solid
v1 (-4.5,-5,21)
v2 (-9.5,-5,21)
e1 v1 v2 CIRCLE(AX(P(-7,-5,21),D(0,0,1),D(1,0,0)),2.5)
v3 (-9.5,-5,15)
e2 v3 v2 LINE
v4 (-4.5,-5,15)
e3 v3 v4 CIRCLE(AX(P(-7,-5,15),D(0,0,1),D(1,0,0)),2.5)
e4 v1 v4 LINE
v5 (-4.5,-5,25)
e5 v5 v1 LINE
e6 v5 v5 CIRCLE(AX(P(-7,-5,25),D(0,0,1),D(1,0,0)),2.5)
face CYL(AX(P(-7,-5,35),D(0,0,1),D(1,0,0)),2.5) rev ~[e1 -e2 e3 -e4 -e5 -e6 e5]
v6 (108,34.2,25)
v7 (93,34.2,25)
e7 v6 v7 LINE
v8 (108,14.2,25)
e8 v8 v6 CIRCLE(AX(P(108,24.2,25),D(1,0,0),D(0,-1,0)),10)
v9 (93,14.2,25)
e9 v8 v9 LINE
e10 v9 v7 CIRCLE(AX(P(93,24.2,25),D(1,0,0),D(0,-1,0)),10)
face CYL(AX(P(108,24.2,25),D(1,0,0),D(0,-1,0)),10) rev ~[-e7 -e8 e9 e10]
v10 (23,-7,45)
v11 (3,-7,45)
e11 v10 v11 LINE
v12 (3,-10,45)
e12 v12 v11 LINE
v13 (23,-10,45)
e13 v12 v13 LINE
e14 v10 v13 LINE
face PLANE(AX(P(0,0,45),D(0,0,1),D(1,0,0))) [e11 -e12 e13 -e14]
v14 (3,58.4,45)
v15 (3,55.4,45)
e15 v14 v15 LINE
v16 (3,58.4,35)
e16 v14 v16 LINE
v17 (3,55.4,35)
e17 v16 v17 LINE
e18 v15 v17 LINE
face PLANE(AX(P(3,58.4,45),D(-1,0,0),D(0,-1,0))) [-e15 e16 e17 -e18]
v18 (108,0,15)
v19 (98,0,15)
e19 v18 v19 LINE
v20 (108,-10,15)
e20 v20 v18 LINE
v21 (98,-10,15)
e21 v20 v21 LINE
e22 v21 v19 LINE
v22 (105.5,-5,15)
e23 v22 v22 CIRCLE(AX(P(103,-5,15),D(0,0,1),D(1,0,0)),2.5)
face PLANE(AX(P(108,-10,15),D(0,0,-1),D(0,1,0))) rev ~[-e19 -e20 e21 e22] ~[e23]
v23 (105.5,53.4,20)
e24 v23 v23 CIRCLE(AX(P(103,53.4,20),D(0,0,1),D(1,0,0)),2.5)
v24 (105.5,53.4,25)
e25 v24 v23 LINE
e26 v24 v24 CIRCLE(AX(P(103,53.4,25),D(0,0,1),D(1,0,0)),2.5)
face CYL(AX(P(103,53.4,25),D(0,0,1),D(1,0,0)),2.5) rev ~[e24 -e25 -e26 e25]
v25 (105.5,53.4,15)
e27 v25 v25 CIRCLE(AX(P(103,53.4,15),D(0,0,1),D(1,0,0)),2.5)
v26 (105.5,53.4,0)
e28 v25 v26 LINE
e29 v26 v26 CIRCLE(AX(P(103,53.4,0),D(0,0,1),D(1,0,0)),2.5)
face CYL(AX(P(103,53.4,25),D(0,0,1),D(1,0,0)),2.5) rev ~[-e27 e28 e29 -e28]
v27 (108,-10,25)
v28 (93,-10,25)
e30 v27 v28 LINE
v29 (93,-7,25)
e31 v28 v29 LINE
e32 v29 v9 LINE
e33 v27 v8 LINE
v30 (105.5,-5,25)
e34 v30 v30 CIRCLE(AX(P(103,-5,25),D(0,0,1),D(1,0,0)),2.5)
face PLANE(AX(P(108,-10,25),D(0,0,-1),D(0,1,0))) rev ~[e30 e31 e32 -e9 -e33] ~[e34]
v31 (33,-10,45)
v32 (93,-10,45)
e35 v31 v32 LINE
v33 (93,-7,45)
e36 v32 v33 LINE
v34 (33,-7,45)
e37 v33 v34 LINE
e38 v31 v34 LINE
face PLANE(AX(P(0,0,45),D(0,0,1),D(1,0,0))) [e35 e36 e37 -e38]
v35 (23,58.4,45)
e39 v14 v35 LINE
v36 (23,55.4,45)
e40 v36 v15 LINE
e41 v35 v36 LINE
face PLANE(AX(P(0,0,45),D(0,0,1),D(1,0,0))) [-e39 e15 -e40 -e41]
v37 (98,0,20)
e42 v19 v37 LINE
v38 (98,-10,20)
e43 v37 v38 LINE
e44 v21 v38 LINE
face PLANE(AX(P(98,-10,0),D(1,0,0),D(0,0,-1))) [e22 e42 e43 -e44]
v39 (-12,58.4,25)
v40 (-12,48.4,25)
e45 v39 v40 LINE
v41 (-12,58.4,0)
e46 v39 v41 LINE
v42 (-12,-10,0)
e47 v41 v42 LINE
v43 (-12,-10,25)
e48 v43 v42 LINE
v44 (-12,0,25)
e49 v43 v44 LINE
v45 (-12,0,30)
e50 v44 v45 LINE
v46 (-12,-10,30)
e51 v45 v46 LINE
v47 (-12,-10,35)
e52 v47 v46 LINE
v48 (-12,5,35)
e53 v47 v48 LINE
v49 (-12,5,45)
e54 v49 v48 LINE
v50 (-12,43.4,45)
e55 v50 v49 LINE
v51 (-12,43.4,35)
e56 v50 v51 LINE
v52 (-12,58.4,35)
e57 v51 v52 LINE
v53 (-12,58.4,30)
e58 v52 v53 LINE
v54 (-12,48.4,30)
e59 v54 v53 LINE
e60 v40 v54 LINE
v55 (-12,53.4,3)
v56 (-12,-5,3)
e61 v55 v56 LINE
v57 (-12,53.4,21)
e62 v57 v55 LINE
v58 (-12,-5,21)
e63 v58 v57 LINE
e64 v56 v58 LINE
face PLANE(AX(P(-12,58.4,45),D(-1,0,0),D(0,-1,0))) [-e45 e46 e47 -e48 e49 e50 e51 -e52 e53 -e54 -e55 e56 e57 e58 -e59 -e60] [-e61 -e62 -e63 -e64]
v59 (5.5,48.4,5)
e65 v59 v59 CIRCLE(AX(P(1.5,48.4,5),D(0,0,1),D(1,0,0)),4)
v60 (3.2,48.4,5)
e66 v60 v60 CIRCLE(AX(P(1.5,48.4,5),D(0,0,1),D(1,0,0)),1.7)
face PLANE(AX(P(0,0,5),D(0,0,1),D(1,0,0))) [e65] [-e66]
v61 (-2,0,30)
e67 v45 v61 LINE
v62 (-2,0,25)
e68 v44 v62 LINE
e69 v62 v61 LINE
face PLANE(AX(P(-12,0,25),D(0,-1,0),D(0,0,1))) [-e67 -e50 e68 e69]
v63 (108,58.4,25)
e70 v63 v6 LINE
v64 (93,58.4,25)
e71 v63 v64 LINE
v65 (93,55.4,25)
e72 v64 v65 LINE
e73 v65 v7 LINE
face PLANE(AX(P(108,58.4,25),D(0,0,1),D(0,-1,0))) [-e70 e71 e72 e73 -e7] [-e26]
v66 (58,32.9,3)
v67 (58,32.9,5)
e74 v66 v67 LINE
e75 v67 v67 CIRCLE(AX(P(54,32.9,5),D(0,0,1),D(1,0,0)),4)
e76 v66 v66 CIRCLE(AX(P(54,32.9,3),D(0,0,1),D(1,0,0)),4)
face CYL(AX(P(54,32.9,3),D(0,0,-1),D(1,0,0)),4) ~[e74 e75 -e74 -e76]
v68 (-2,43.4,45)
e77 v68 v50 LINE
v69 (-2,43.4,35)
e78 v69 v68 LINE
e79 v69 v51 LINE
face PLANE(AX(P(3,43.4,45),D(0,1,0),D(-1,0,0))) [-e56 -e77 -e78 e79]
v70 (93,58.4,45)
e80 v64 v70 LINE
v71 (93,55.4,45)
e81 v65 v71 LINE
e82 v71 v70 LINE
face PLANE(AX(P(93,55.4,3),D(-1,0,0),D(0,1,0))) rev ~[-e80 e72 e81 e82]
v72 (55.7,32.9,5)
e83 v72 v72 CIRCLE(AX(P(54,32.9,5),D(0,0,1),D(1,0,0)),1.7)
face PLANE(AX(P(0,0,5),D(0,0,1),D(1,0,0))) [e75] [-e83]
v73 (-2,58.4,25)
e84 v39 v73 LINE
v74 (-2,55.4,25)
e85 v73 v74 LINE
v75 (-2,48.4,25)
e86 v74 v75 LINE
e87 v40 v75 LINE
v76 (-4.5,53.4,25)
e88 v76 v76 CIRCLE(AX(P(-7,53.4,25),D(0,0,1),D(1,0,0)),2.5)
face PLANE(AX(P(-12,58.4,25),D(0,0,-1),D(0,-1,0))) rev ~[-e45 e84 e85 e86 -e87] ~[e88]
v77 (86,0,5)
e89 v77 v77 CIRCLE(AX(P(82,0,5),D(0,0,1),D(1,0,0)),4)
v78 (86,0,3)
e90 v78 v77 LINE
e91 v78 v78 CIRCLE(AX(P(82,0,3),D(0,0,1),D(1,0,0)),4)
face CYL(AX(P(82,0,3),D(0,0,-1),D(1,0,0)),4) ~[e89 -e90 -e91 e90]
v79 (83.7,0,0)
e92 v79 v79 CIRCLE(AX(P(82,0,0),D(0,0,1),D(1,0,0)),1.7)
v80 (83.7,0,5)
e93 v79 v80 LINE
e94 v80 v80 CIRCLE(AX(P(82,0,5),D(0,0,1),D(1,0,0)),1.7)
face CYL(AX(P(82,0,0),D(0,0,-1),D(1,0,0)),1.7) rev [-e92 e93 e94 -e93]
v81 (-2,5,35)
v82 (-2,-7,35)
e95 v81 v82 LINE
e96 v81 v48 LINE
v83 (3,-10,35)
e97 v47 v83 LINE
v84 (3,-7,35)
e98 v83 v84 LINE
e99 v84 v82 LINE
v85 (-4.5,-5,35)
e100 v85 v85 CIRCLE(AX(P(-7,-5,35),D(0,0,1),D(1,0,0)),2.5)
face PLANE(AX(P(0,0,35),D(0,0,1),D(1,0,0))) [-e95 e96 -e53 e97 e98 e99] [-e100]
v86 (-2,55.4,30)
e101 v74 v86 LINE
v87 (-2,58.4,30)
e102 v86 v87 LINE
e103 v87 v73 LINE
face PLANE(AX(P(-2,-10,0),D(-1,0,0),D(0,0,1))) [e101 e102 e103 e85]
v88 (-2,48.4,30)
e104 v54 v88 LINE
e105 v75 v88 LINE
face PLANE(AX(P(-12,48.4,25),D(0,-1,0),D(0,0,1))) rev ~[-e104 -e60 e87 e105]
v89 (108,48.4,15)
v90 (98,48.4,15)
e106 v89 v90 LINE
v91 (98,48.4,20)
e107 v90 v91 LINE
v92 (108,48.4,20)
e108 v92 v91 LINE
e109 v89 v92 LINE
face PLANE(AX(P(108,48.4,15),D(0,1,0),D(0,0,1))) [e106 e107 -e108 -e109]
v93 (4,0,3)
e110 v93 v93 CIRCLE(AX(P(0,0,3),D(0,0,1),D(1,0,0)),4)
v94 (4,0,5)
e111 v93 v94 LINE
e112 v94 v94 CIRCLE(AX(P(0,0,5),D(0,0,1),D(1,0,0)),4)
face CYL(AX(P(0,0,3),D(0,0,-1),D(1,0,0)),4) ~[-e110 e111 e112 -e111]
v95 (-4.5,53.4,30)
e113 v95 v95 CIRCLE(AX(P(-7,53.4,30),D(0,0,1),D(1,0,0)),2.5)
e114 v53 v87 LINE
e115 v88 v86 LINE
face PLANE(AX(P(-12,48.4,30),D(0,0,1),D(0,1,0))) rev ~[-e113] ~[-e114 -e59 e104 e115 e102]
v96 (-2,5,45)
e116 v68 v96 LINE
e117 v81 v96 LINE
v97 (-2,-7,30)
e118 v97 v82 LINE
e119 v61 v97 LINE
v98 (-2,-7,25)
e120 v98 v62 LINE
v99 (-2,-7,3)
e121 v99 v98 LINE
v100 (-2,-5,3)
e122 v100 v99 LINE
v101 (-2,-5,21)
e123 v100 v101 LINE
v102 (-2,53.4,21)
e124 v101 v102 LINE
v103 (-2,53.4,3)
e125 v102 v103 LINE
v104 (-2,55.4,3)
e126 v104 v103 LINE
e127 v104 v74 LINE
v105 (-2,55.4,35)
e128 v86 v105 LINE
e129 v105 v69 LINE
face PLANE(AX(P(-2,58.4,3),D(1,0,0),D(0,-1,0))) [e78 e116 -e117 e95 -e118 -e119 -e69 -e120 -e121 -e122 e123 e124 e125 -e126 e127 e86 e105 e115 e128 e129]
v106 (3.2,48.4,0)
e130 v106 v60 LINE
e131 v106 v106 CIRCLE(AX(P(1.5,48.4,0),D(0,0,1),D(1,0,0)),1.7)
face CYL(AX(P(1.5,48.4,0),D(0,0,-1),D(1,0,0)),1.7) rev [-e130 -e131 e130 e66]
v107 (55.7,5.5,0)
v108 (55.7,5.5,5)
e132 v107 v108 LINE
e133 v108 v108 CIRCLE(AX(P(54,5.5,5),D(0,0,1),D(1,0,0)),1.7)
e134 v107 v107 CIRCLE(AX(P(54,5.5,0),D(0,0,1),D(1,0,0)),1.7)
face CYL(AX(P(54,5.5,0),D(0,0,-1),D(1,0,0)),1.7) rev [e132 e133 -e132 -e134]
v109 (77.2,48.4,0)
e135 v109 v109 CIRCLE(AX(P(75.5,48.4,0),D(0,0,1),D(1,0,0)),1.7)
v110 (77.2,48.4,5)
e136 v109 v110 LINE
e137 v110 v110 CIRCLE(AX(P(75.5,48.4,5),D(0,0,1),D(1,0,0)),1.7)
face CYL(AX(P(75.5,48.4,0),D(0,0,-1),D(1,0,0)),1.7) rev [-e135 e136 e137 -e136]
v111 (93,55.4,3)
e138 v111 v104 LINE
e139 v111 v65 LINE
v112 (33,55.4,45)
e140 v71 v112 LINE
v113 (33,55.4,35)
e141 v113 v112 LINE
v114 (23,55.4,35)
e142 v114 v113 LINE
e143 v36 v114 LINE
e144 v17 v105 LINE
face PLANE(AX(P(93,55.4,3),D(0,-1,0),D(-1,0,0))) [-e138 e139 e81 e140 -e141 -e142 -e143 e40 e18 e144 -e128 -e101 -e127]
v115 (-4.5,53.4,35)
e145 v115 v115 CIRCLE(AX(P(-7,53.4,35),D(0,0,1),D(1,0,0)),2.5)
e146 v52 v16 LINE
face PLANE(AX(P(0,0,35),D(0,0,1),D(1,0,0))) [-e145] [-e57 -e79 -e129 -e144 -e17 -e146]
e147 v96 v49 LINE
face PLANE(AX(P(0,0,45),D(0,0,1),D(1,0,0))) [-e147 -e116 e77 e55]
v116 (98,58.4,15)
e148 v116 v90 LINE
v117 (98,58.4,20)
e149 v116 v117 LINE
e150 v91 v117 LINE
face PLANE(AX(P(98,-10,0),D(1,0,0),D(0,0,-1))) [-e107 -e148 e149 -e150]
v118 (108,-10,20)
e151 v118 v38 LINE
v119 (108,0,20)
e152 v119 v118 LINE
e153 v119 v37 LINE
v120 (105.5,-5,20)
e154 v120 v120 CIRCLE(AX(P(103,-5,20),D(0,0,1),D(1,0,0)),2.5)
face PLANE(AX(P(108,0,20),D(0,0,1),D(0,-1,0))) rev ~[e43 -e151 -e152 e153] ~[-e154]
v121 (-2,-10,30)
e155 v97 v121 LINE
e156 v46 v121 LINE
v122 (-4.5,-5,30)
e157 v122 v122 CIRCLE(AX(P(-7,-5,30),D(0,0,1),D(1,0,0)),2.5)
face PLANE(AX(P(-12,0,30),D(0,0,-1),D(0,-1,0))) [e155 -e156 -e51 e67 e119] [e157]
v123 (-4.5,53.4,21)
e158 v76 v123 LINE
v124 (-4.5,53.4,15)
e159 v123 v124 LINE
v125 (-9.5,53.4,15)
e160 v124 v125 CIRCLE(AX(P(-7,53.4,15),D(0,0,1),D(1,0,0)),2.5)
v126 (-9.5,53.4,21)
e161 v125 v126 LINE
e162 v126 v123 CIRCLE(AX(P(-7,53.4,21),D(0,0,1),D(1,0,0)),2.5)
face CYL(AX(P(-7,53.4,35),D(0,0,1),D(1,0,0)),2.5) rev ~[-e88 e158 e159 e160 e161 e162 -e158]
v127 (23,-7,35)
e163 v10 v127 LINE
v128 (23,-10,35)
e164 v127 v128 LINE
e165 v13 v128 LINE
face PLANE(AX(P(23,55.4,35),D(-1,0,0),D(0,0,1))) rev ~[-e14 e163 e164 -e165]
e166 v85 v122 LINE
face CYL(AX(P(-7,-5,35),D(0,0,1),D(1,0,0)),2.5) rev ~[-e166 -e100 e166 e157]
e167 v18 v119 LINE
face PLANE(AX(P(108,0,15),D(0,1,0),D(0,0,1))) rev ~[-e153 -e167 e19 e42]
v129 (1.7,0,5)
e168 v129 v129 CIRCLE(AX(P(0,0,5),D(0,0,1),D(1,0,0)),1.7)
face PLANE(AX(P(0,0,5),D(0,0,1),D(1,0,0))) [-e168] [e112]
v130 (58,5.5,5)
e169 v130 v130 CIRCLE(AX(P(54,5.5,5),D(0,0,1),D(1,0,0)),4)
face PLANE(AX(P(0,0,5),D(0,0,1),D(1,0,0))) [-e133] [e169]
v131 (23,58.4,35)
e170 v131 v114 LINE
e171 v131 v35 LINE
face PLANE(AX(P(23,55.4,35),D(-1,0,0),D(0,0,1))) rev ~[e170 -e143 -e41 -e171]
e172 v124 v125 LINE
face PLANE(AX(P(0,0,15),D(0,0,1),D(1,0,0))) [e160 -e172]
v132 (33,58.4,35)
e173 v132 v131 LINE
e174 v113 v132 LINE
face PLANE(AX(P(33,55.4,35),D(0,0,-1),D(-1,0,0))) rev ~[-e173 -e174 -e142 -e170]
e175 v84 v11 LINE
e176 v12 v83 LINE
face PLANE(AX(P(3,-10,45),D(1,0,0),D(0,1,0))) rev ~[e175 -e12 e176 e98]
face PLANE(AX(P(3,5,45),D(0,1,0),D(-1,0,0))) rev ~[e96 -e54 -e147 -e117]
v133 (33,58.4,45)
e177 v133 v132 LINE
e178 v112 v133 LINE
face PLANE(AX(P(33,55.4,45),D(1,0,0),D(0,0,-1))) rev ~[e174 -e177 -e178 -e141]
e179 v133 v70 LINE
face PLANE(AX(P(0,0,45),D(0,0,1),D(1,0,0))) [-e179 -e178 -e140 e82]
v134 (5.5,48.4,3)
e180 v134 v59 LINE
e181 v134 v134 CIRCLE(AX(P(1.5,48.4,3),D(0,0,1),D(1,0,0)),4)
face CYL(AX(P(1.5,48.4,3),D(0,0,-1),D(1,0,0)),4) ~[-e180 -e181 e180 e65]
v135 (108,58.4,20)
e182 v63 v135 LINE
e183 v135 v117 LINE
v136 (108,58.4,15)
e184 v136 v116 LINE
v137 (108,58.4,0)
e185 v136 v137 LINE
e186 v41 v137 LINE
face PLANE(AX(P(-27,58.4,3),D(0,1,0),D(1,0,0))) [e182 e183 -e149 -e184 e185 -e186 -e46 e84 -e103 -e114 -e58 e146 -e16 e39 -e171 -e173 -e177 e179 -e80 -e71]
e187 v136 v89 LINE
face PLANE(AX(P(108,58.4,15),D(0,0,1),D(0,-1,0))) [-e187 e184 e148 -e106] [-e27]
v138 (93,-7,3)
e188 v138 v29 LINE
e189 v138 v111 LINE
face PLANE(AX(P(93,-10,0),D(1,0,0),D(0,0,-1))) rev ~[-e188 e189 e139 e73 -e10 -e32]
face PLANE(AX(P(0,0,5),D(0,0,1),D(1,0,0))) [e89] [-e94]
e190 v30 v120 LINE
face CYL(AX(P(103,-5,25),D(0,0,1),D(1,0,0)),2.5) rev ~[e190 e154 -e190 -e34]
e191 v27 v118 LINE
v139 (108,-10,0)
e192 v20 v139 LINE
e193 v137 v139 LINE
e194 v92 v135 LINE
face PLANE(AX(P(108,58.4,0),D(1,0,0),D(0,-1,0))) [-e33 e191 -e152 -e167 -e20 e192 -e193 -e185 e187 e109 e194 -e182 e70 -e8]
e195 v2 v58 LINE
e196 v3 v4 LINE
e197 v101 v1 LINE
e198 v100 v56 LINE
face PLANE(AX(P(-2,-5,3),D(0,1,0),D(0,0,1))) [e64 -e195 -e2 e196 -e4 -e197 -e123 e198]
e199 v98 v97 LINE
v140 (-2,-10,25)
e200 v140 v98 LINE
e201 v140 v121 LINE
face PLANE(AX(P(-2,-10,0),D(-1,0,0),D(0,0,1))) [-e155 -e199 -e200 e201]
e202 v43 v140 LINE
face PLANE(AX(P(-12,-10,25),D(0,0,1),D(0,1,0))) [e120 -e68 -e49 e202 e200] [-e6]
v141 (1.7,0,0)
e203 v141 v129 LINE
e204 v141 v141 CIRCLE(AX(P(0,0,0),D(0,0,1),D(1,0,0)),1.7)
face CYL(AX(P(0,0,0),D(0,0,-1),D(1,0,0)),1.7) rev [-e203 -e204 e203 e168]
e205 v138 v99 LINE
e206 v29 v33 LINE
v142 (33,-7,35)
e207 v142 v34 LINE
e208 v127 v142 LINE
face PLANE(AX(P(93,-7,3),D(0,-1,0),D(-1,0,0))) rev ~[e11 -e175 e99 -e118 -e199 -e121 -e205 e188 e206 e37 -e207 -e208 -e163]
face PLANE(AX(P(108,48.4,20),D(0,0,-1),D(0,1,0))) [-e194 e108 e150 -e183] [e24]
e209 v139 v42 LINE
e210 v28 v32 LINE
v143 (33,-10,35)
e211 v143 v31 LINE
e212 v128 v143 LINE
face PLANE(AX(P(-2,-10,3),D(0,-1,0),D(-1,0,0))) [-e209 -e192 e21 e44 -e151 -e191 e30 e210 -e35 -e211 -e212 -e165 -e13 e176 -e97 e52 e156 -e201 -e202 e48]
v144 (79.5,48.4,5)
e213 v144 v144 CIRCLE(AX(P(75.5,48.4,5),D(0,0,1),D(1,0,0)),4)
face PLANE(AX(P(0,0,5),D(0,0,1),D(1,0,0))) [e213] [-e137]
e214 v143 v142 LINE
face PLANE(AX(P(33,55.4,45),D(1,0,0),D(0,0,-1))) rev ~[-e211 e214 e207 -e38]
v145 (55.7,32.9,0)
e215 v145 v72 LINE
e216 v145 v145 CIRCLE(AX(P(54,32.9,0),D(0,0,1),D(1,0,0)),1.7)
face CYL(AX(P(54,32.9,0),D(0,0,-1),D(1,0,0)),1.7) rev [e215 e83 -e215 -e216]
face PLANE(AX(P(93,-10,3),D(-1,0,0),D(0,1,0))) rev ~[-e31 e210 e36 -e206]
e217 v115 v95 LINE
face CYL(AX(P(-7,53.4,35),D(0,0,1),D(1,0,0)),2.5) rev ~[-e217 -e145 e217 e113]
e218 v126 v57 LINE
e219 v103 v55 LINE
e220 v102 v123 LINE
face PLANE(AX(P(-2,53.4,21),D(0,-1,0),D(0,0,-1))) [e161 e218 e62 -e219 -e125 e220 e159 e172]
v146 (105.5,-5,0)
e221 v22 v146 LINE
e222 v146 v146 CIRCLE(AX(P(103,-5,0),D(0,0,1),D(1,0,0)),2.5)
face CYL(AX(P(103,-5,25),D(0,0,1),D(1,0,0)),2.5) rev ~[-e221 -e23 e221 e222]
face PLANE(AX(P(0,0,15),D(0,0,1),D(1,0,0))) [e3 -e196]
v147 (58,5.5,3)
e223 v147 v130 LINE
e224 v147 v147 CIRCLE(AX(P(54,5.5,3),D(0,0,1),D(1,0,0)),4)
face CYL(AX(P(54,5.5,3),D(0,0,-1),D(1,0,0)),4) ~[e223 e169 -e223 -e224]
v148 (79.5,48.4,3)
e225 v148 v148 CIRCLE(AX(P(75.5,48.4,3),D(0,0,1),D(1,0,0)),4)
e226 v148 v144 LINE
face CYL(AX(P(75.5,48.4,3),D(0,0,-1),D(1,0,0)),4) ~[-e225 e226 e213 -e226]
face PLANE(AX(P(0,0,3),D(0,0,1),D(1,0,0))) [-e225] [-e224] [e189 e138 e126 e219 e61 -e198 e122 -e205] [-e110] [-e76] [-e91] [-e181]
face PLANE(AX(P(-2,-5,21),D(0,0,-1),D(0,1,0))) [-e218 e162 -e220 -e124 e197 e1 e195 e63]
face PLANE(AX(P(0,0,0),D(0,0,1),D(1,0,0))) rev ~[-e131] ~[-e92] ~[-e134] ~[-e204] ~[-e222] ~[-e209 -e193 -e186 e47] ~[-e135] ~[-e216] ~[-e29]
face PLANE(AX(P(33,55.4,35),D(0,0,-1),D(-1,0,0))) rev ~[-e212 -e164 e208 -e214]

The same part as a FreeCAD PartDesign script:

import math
import FreeCAD as App
import Part
import Sketcher
from FreeCAD import Vector
Q = App.Units.Quantity


def add_polygon(sketch, points):
    """Adds a closed chain of lines whose ends are joined by coincident constraints."""
    first, n = sketch.GeometryCount, len(points)
    for a, b in zip(points, points[1:] + points[:1]):
        sketch.addGeometry(Part.LineSegment(App.Vector(*a, 0), App.Vector(*b, 0)), False)
    for i in range(n):
        sketch.addConstraint(Sketcher.Constraint("Coincident", first + i, 2, first + (i + 1) % n, 1))

doc = App.newDocument("Part")
params = doc.addObject("Spreadsheet::Sheet", "Params")
for row, (alias, value) in enumerate([
    ("sketch1_diameter", "3.4 mm"),
    ("sketch1_width", "135 mm"),
    ("sketch1_height", "68.4 mm"),
    ("pad1_length", "3 mm"),
    ("sketch2_radius", "10 mm"),
    ("sketch2_height", "22 mm"),
    ("sketch2_width", "68.4 mm"),
    ("pad2_length", "15 mm"),
    ("sketch3_diameter", "5 mm"),
    ("sketch4_width", "25 mm"),
    ("sketch4_height", "68.4 mm"),
    ("pad3_length", "42 mm"),
    ("sketch5_height", "18 mm"),
    ("sketch5_width", "58.4 mm"),
    ("sketch6_height", "3 mm"),
    ("sketch6_width", "95 mm"),
    ("pad4_length", "42 mm"),
    ("sketch7_diameter", "5 mm"),
    ("sketch8_width", "10 mm"),
    ("sketch9_width", "10 mm"),
    ("sketch9_height", "5 mm"),
    ("pocket5_length", "10 mm"),
    ("sketch10_width", "15 mm"),
    ("sketch10_height", "68.4 mm"),
    ("sketch11_width", "15 mm"),
    ("pocket7_length", "10 mm"),
    ("sketch12_diameter", "5 mm"),
    ("pocket8_length", "20 mm"),
    ("sketch13_width", "10 mm"),
    ("sketch13_height", "5 mm"),
    ("pocket9_length", "10 mm"),
    ("sketch14_diameter", "8 mm"),
    ("sketch14_diameter2", "3.4 mm"),
    ("pad5_length", "2 mm"),
], start=1):
    params.set(f"A{row}", alias)
    params.set(f"B{row}", "=" + value)
    params.setAlias(f"B{row}", alias)

body = doc.addObject("PartDesign::Body", "Body")

# Sketch on XY plane
sketch1 = body.newObject("Sketcher::SketchObject", "Sketch")
sketch1.AttachmentSupport = (doc.getObject("XY_Plane"), [""])
sketch1.MapMode = "FlatFace"
add_polygon(sketch1, [(108, 58.4), (-27, 58.4), (-27, -10), (108, -10)])  # lines 0-3
sketch1.addGeometry(Part.Circle(Vector(0, 0, 0), Vector(0, 0, 1), 1.7), False)  # 4
sketch1.addGeometry(Part.Circle(Vector(54, 5.5, 0), Vector(0, 0, 1), 1.7), False)  # 5
sketch1.addGeometry(Part.Circle(Vector(82, 0, 0), Vector(0, 0, 1), 1.7), False)  # 6
sketch1.addGeometry(Part.Circle(Vector(1.5, 48.4, 0), Vector(0, 0, 1), 1.7), False)  # 7
sketch1.addGeometry(Part.Circle(Vector(54, 32.9, 0), Vector(0, 0, 1), 1.7), False)  # 8
sketch1.addGeometry(Part.Circle(Vector(75.5, 48.4, 0), Vector(0, 0, 1), 1.7), False)  # 9
sketch1.addConstraint(Sketcher.Constraint("Horizontal", 0))
sketch1.addConstraint(Sketcher.Constraint("Vertical", 1))
sketch1.addConstraint(Sketcher.Constraint("Horizontal", 2))
sketch1.addConstraint(Sketcher.Constraint("Vertical", 3))
sketch1.addConstraint(Sketcher.Constraint("Coincident", 4, 3, -1, 1))
sketch1.addConstraint(Sketcher.Constraint("Equal", 4, 5))
sketch1.addConstraint(Sketcher.Constraint("Equal", 5, 6))
sketch1.addConstraint(Sketcher.Constraint("Equal", 6, 7))
sketch1.addConstraint(Sketcher.Constraint("Equal", 7, 8))
sketch1.addConstraint(Sketcher.Constraint("Equal", 8, 9))
sketch1.addConstraint(Sketcher.Constraint("PointOnObject", 6, 3, -1))
sketch1.addConstraint(Sketcher.Constraint("Horizontal", 7, 3, 9, 3))
sketch1.addConstraint(Sketcher.Constraint("Vertical", 5, 3, 8, 3))
sketch1.addConstraint(Sketcher.Constraint("Diameter", 4, Q("3.4 mm")))
sketch1.addConstraint(Sketcher.Constraint("DistanceX", 0, 2, 0, 1, Q("135 mm")))
sketch1.addConstraint(Sketcher.Constraint("DistanceY", 1, 2, 1, 1, Q("68.4 mm")))
sketch1.addConstraint(Sketcher.Constraint("DistanceX", -1, 1, 6, 3, Q("82 mm")))
sketch1.addConstraint(Sketcher.Constraint("DistanceX", 0, 2, -1, 1, Q("27 mm")))
sketch1.addConstraint(Sketcher.Constraint("DistanceY", 1, 2, -1, 1, Q("10 mm")))
sketch1.addConstraint(Sketcher.Constraint("DistanceX", 5, 3, 6, 3, Q("28 mm")))
sketch1.addConstraint(Sketcher.Constraint("DistanceX", 7, 3, 9, 3, Q("74 mm")))
sketch1.addConstraint(Sketcher.Constraint("DistanceY", 7, 3, 0, 2, Q("10 mm")))
sketch1.addConstraint(Sketcher.Constraint("DistanceY", -1, 1, 5, 3, Q("5.5 mm")))
sketch1.addConstraint(Sketcher.Constraint("DistanceX", -1, 1, 7, 3, Q("1.5 mm")))
sketch1.addConstraint(Sketcher.Constraint("DistanceY", 5, 3, 8, 3, Q("27.4 mm")))
sketch1.setExpression("Constraints[17]", "Params.sketch1_diameter")
sketch1.setExpression("Constraints[18]", "Params.sketch1_width")
sketch1.setExpression("Constraints[19]", "Params.sketch1_height")
pad1 = body.newObject("PartDesign::Pad", "Pad")
pad1.Profile = sketch1
pad1.setExpression("Length", "Params.pad1_length")

# Sketch on YZ plane
sketch2 = body.newObject("Sketcher::SketchObject", "Sketch001")
sketch2.AttachmentSupport = (doc.getObject("YZ_Plane"), [""])
sketch2.MapMode = "FlatFace"
sketch2.AttachmentOffset = App.Placement(Vector(0, 0, 108), App.Rotation())
sketch2.addGeometry(Part.LineSegment(Vector(-10, 25, 0), Vector(-10, 3, 0)), False)
sketch2.addGeometry(Part.LineSegment(Vector(-10, 3, 0), Vector(58, 3, 0)), False)
sketch2.addGeometry(Part.LineSegment(Vector(58, 3, 0), Vector(58, 25, 0)), False)
sketch2.addGeometry(Part.LineSegment(Vector(58, 25, 0), Vector(34, 25, 0)), False)
sketch2.addGeometry(Part.ArcOfCircle(Part.Circle(Vector(24, 25, 0), Vector(0, 0, 1), 10), math.radians(180), math.radians(360)), False)
sketch2.addGeometry(Part.LineSegment(Vector(14, 25, 0), Vector(-10, 25, 0)), False)
sketch2.addConstraint(Sketcher.Constraint("Coincident", 0, 2, 1, 1))
sketch2.addConstraint(Sketcher.Constraint("Coincident", 1, 2, 2, 1))
sketch2.addConstraint(Sketcher.Constraint("Coincident", 2, 2, 3, 1))
sketch2.addConstraint(Sketcher.Constraint("Coincident", 3, 2, 4, 2))
sketch2.addConstraint(Sketcher.Constraint("Coincident", 4, 1, 5, 1))
sketch2.addConstraint(Sketcher.Constraint("Coincident", 5, 2, 0, 1))
sketch2.addConstraint(Sketcher.Constraint("Vertical", 0))
sketch2.addConstraint(Sketcher.Constraint("Horizontal", 1))
sketch2.addConstraint(Sketcher.Constraint("Vertical", 2))
sketch2.addConstraint(Sketcher.Constraint("Horizontal", 3))
sketch2.addConstraint(Sketcher.Constraint("Horizontal", 5))
sketch2.addConstraint(Sketcher.Constraint("Horizontal", 4, 3, 2, 2))
sketch2.addConstraint(Sketcher.Constraint("Horizontal", 3, 2, 4, 1))
sketch2.addConstraint(Sketcher.Constraint("Equal", 3, 5))
sketch2.addConstraint(Sketcher.Constraint("Radius", 4, Q("10 mm")))
sketch2.addConstraint(Sketcher.Constraint("DistanceY", 0, 2, 0, 1, Q("22 mm")))
sketch2.addConstraint(Sketcher.Constraint("DistanceX", 1, 1, 1, 2, Q("68.4 mm")))
sketch2.addConstraint(Sketcher.Constraint("DistanceY", -1, 1, 4, 3, Q("25 mm")))
sketch2.addConstraint(Sketcher.Constraint("DistanceX", 0, 2, -1, 1, Q("10 mm")))
sketch2.setExpression("Constraints[14]", "Params.sketch2_radius")
sketch2.setExpression("Constraints[15]", "Params.sketch2_height")
sketch2.setExpression("Constraints[16]", "Params.sketch2_width")
pad2 = body.newObject("PartDesign::Pad", "Pad001")
pad2.Profile = sketch2
pad2.setExpression("Length", "Params.pad2_length")
pad2.Reversed = True

# Sketch on XY plane
sketch3 = body.newObject("Sketcher::SketchObject", "Sketch002")
sketch3.AttachmentSupport = (doc.getObject("XY_Plane"), [""])
sketch3.MapMode = "FlatFace"
sketch3.AttachmentOffset = App.Placement(Vector(0, 0, 25), App.Rotation())
sketch3.addGeometry(Part.Circle(Vector(103, -5, 0), Vector(0, 0, 1), 2.5), False)
sketch3.addConstraint(Sketcher.Constraint("Diameter", 0, Q("5 mm")))
sketch3.addConstraint(Sketcher.Constraint("DistanceY", 0, 3, -1, 1, Q("5 mm")))
sketch3.addConstraint(Sketcher.Constraint("DistanceX", -1, 1, 0, 3, Q("103 mm")))
sketch3.setExpression("Constraints[0]", "Params.sketch3_diameter")
pocket1 = body.newObject("PartDesign::Pocket", "Pocket")
pocket1.Profile = sketch3
pocket1.Type = "ThroughAll"

# Sketch on XY plane
sketch4 = body.newObject("Sketcher::SketchObject", "Sketch003")
sketch4.AttachmentSupport = (doc.getObject("XY_Plane"), [""])
sketch4.MapMode = "FlatFace"
sketch4.AttachmentOffset = App.Placement(Vector(0, 0, 3), App.Rotation())
add_polygon(sketch4, [(-2, 58), (-27, 58), (-27, -10), (-2, -10)])  # lines 0-3
sketch4.addConstraint(Sketcher.Constraint("Horizontal", 0))
sketch4.addConstraint(Sketcher.Constraint("Vertical", 1))
sketch4.addConstraint(Sketcher.Constraint("Horizontal", 2))
sketch4.addConstraint(Sketcher.Constraint("Vertical", 3))
sketch4.addConstraint(Sketcher.Constraint("DistanceX", 0, 2, 0, 1, Q("25 mm")))
sketch4.addConstraint(Sketcher.Constraint("DistanceY", 1, 2, 1, 1, Q("68.4 mm")))
sketch4.addConstraint(Sketcher.Constraint("DistanceX", 0, 2, -1, 1, Q("27 mm")))
sketch4.addConstraint(Sketcher.Constraint("DistanceY", 1, 2, -1, 1, Q("10 mm")))
sketch4.setExpression("Constraints[8]", "Params.sketch4_width")
sketch4.setExpression("Constraints[9]", "Params.sketch4_height")
pad3 = body.newObject("PartDesign::Pad", "Pad002")
pad3.Profile = sketch4
pad3.setExpression("Length", "Params.pad3_length")

# Sketch on YZ plane
sketch5 = body.newObject("Sketcher::SketchObject", "Sketch004")
sketch5.AttachmentSupport = (doc.getObject("YZ_Plane"), [""])
sketch5.MapMode = "FlatFace"
sketch5.AttachmentOffset = App.Placement(Vector(0, 0, -2), App.Rotation())
add_polygon(sketch5, [(-5, 3), (53, 3), (53, 21), (-5, 21)])  # lines 0-3
sketch5.addConstraint(Sketcher.Constraint("Horizontal", 0))
sketch5.addConstraint(Sketcher.Constraint("Vertical", 1))
sketch5.addConstraint(Sketcher.Constraint("Horizontal", 2))
sketch5.addConstraint(Sketcher.Constraint("Vertical", 3))
sketch5.addConstraint(Sketcher.Constraint("DistanceY", 1, 1, 1, 2, Q("18 mm")))
sketch5.addConstraint(Sketcher.Constraint("DistanceX", 2, 2, -1, 1, Q("5 mm")))
sketch5.addConstraint(Sketcher.Constraint("DistanceX", 0, 1, 0, 2, Q("58.4 mm")))
sketch5.addConstraint(Sketcher.Constraint("DistanceY", -1, 1, 0, 2, Q("3 mm")))
sketch5.setExpression("Constraints[8]", "Params.sketch5_height")
sketch5.setExpression("Constraints[10]", "Params.sketch5_width")
pocket2 = body.newObject("PartDesign::Pocket", "Pocket001")
pocket2.Profile = sketch5
pocket2.Type = "ThroughAll"

# Sketch on XY plane
sketch6 = body.newObject("Sketcher::SketchObject", "Sketch005")
sketch6.AttachmentSupport = (doc.getObject("XY_Plane"), [""])
sketch6.MapMode = "FlatFace"
sketch6.AttachmentOffset = App.Placement(Vector(0, 0, 3), App.Rotation())
add_polygon(sketch6, [(-2, -7), (-2, -10), (93, -10), (93, -7)])  # lines 0-3
add_polygon(sketch6, [(-2, 55.4), (93, 55.4), (93, 58.4), (-2, 58.4)])  # lines 4-7
sketch6.addConstraint(Sketcher.Constraint("Vertical", 0))
sketch6.addConstraint(Sketcher.Constraint("Horizontal", 1))
sketch6.addConstraint(Sketcher.Constraint("Vertical", 2))
sketch6.addConstraint(Sketcher.Constraint("Horizontal", 3))
sketch6.addConstraint(Sketcher.Constraint("Horizontal", 4))
sketch6.addConstraint(Sketcher.Constraint("Vertical", 5))
sketch6.addConstraint(Sketcher.Constraint("Horizontal", 6))
sketch6.addConstraint(Sketcher.Constraint("Vertical", 7))
sketch6.addConstraint(Sketcher.Constraint("Vertical", 2, 2, 4, 2))
sketch6.addConstraint(Sketcher.Constraint("Vertical", 3, 2, 6, 2))
sketch6.addConstraint(Sketcher.Constraint("Equal", 2, 5))
sketch6.addConstraint(Sketcher.Constraint("DistanceY", 0, 2, 0, 1, Q("3 mm")))
sketch6.addConstraint(Sketcher.Constraint("DistanceX", 1, 1, 1, 2, Q("95 mm")))
sketch6.addConstraint(Sketcher.Constraint("DistanceX", 0, 2, -1, 1, Q("2 mm")))
sketch6.addConstraint(Sketcher.Constraint("DistanceY", 0, 2, -1, 1, Q("10 mm")))
sketch6.addConstraint(Sketcher.Constraint("DistanceY", -1, 1, 4, 2, Q("55.4 mm")))
sketch6.setExpression("Constraints[19]", "Params.sketch6_height")
sketch6.setExpression("Constraints[20]", "Params.sketch6_width")
pad4 = body.newObject("PartDesign::Pad", "Pad003")
pad4.Profile = sketch6
pad4.setExpression("Length", "Params.pad4_length")

# Sketch on XY plane
sketch7 = body.newObject("Sketcher::SketchObject", "Sketch006")
sketch7.AttachmentSupport = (doc.getObject("XY_Plane"), [""])
sketch7.MapMode = "FlatFace"
sketch7.AttachmentOffset = App.Placement(Vector(0, 0, 25), App.Rotation())
sketch7.addGeometry(Part.Circle(Vector(103, 53.4, 0), Vector(0, 0, 1), 2.5), False)
sketch7.addConstraint(Sketcher.Constraint("Diameter", 0, Q("5 mm")))
sketch7.addConstraint(Sketcher.Constraint("DistanceX", -1, 1, 0, 3, Q("103 mm")))
sketch7.addConstraint(Sketcher.Constraint("DistanceY", -1, 1, 0, 3, Q("53.4 mm")))
sketch7.setExpression("Constraints[0]", "Params.sketch7_diameter")
pocket3 = body.newObject("PartDesign::Pocket", "Pocket002")
pocket3.Profile = sketch7
pocket3.Type = "ThroughAll"

# Sketch on XZ plane
sketch8 = body.newObject("Sketcher::SketchObject", "Sketch007")
sketch8.AttachmentSupport = (doc.getObject("XZ_Plane"), [""])
sketch8.MapMode = "FlatFace"
sketch8.AttachmentOffset = App.Placement(Vector(0, 0, -55.4), App.Rotation())
add_polygon(sketch8, [(33, 45), (23, 45), (23, 35), (33, 35)])  # lines 0-3
sketch8.addConstraint(Sketcher.Constraint("Horizontal", 0))
sketch8.addConstraint(Sketcher.Constraint("Vertical", 1))
sketch8.addConstraint(Sketcher.Constraint("Horizontal", 2))
sketch8.addConstraint(Sketcher.Constraint("Vertical", 3))
sketch8.addConstraint(Sketcher.Constraint("Equal", 2, 1))
sketch8.addConstraint(Sketcher.Constraint("DistanceX", 0, 2, 0, 1, Q("10 mm")))
sketch8.addConstraint(Sketcher.Constraint("DistanceX", -1, 1, 0, 2, Q("23 mm")))
sketch8.addConstraint(Sketcher.Constraint("DistanceY", -1, 1, 0, 2, Q("45 mm")))
sketch8.setExpression("Constraints[9]", "Params.sketch8_width")
pocket4 = body.newObject("PartDesign::Pocket", "Pocket003")
pocket4.Profile = sketch8
pocket4.Type = "ThroughAll"
pocket4.Midplane = True

# Sketch on YZ plane
sketch9 = body.newObject("Sketcher::SketchObject", "Sketch008")
sketch9.AttachmentSupport = (doc.getObject("YZ_Plane"), [""])
sketch9.MapMode = "FlatFace"
sketch9.AttachmentOffset = App.Placement(Vector(0, 0, 108), App.Rotation())
add_polygon(sketch9, [(-10, 20), (-10, 15), (0, 15), (0, 20)])  # lines 0-3
add_polygon(sketch9, [(48, 15), (58, 15), (58, 20), (48, 20)])  # lines 4-7
sketch9.addConstraint(Sketcher.Constraint("Vertical", 0))
sketch9.addConstraint(Sketcher.Constraint("Horizontal", 1))
sketch9.addConstraint(Sketcher.Constraint("Vertical", 2))
sketch9.addConstraint(Sketcher.Constraint("Horizontal", 3))
sketch9.addConstraint(Sketcher.Constraint("Horizontal", 4))
sketch9.addConstraint(Sketcher.Constraint("Vertical", 5))
sketch9.addConstraint(Sketcher.Constraint("Horizontal", 6))
sketch9.addConstraint(Sketcher.Constraint("Vertical", 7))
sketch9.addConstraint(Sketcher.Constraint("PointOnObject", 1, 2, -2))
sketch9.addConstraint(Sketcher.Constraint("Horizontal", 1, 2, 4, 2))
sketch9.addConstraint(Sketcher.Constraint("Horizontal", 3, 2, 5, 2))
sketch9.addConstraint(Sketcher.Constraint("Equal", 3, 4))
sketch9.addConstraint(Sketcher.Constraint("DistanceX", 1, 1, 1, 2, Q("10 mm")))
sketch9.addConstraint(Sketcher.Constraint("DistanceY", 0, 2, 0, 1, Q("5 mm")))
sketch9.addConstraint(Sketcher.Constraint("DistanceY", -1, 1, 0, 2, Q("15 mm")))
sketch9.addConstraint(Sketcher.Constraint("DistanceX", -1, 1, 4, 2, Q("58.4 mm")))
sketch9.setExpression("Constraints[20]", "Params.sketch9_width")
sketch9.setExpression("Constraints[21]", "Params.sketch9_height")
pocket5 = body.newObject("PartDesign::Pocket", "Pocket004")
pocket5.Profile = sketch9
pocket5.setExpression("Length", "Params.pocket5_length")

# Sketch on XY plane
sketch10 = body.newObject("Sketcher::SketchObject", "Sketch009")
sketch10.AttachmentSupport = (doc.getObject("XY_Plane"), [""])
sketch10.MapMode = "FlatFace"
sketch10.AttachmentOffset = App.Placement(Vector(0, 0, 45), App.Rotation())
add_polygon(sketch10, [(-12, -10), (-12, 58), (-27, 58), (-27, -10)])  # lines 0-3
sketch10.addConstraint(Sketcher.Constraint("Vertical", 0))
sketch10.addConstraint(Sketcher.Constraint("Horizontal", 1))
sketch10.addConstraint(Sketcher.Constraint("Vertical", 2))
sketch10.addConstraint(Sketcher.Constraint("Horizontal", 3))
sketch10.addConstraint(Sketcher.Constraint("DistanceY", 2, 2, -1, 1, Q("10 mm")))
sketch10.addConstraint(Sketcher.Constraint("DistanceX", 1, 2, 1, 1, Q("15 mm")))
sketch10.addConstraint(Sketcher.Constraint("DistanceY", 0, 1, 0, 2, Q("68.4 mm")))
sketch10.addConstraint(Sketcher.Constraint("DistanceX", 0, 2, -1, 1, Q("12 mm")))
sketch10.setExpression("Constraints[9]", "Params.sketch10_width")
sketch10.setExpression("Constraints[10]", "Params.sketch10_height")
pocket6 = body.newObject("PartDesign::Pocket", "Pocket005")
pocket6.Profile = sketch10
pocket6.Type = "ThroughAll"

# Sketch on XY plane
sketch11 = body.newObject("Sketcher::SketchObject", "Sketch010")
sketch11.AttachmentSupport = (doc.getObject("XY_Plane"), [""])
sketch11.MapMode = "FlatFace"
sketch11.AttachmentOffset = App.Placement(Vector(0, 0, 45), App.Rotation())
add_polygon(sketch11, [(-12, 58), (-12, 43), (3, 43), (3, 58)])  # lines 0-3
add_polygon(sketch11, [(-12, 5), (-12, -10), (3, -10), (3, 5)])  # lines 4-7
sketch11.addConstraint(Sketcher.Constraint("Vertical", 0))
sketch11.addConstraint(Sketcher.Constraint("Horizontal", 1))
sketch11.addConstraint(Sketcher.Constraint("Vertical", 2))
sketch11.addConstraint(Sketcher.Constraint("Horizontal", 3))
sketch11.addConstraint(Sketcher.Constraint("Vertical", 4))
sketch11.addConstraint(Sketcher.Constraint("Horizontal", 5))
sketch11.addConstraint(Sketcher.Constraint("Vertical", 6))
sketch11.addConstraint(Sketcher.Constraint("Horizontal", 7))
sketch11.addConstraint(Sketcher.Constraint("Vertical", 3, 2, 4, 2))
sketch11.addConstraint(Sketcher.Constraint("Vertical", 2, 2, 5, 2))
sketch11.addConstraint(Sketcher.Constraint("Equal", 7, 0))
sketch11.addConstraint(Sketcher.Constraint("Equal", 2, 4))
sketch11.addConstraint(Sketcher.Constraint("DistanceX", 1, 1, 1, 2, Q("15 mm")))
sketch11.addConstraint(Sketcher.Constraint("DistanceX", 0, 2, -1, 1, Q("12 mm")))
sketch11.addConstraint(Sketcher.Constraint("DistanceY", 4, 2, -1, 1, Q("10 mm")))
sketch11.addConstraint(Sketcher.Constraint("DistanceY", -1, 1, 0, 2, Q("43.4 mm")))
sketch11.setExpression("Constraints[20]", "Params.sketch11_width")
pocket7 = body.newObject("PartDesign::Pocket", "Pocket006")
pocket7.Profile = sketch11
pocket7.setExpression("Length", "Params.pocket7_length")

# Sketch on XY plane
sketch12 = body.newObject("Sketcher::SketchObject", "Sketch011")
sketch12.AttachmentSupport = (doc.getObject("XY_Plane"), [""])
sketch12.MapMode = "FlatFace"
sketch12.AttachmentOffset = App.Placement(Vector(0, 0, 35), App.Rotation())
sketch12.addGeometry(Part.Circle(Vector(-7, 53.4, 0), Vector(0, 0, 1), 2.5), False)
sketch12.addGeometry(Part.Circle(Vector(-7, -5, 0), Vector(0, 0, 1), 2.5), False)
sketch12.addConstraint(Sketcher.Constraint("Equal", 0, 1))
sketch12.addConstraint(Sketcher.Constraint("Vertical", 0, 3, 1, 3))
sketch12.addConstraint(Sketcher.Constraint("Diameter", 0, Q("5 mm")))
sketch12.addConstraint(Sketcher.Constraint("DistanceY", 1, 3, -1, 1, Q("5 mm")))
sketch12.addConstraint(Sketcher.Constraint("DistanceX", 0, 3, -1, 1, Q("7 mm")))
sketch12.addConstraint(Sketcher.Constraint("DistanceY", -1, 1, 0, 3, Q("53.4 mm")))
sketch12.setExpression("Constraints[2]", "Params.sketch12_diameter")
pocket8 = body.newObject("PartDesign::Pocket", "Pocket007")
pocket8.Profile = sketch12
pocket8.setExpression("Length", "Params.pocket8_length")

# Sketch on YZ plane
sketch13 = body.newObject("Sketcher::SketchObject", "Sketch012")
sketch13.AttachmentSupport = (doc.getObject("YZ_Plane"), [""])
sketch13.MapMode = "FlatFace"
sketch13.AttachmentOffset = App.Placement(Vector(0, 0, -12), App.Rotation())
add_polygon(sketch13, [(48, 30), (58, 30), (58, 25), (48, 25)])  # lines 0-3
add_polygon(sketch13, [(0, 25), (-10, 25), (-10, 30), (0, 30)])  # lines 4-7
sketch13.addConstraint(Sketcher.Constraint("Horizontal", 0))
sketch13.addConstraint(Sketcher.Constraint("Vertical", 1))
sketch13.addConstraint(Sketcher.Constraint("Horizontal", 2))
sketch13.addConstraint(Sketcher.Constraint("Vertical", 3))
sketch13.addConstraint(Sketcher.Constraint("Horizontal", 4))
sketch13.addConstraint(Sketcher.Constraint("Vertical", 5))
sketch13.addConstraint(Sketcher.Constraint("Horizontal", 6))
sketch13.addConstraint(Sketcher.Constraint("Vertical", 7))
sketch13.addConstraint(Sketcher.Constraint("PointOnObject", 6, 2, -2))
sketch13.addConstraint(Sketcher.Constraint("Horizontal", 2, 2, 4, 2))
sketch13.addConstraint(Sketcher.Constraint("Horizontal", 3, 2, 5, 2))
sketch13.addConstraint(Sketcher.Constraint("Equal", 2, 4))
sketch13.addConstraint(Sketcher.Constraint("DistanceX", 0, 1, 0, 2, Q("10 mm")))
sketch13.addConstraint(Sketcher.Constraint("DistanceY", 1, 2, 1, 1, Q("5 mm")))
sketch13.addConstraint(Sketcher.Constraint("DistanceY", -1, 1, 0, 2, Q("30 mm")))
sketch13.addConstraint(Sketcher.Constraint("DistanceX", -1, 1, 0, 2, Q("58.4 mm")))
sketch13.setExpression("Constraints[20]", "Params.sketch13_width")
sketch13.setExpression("Constraints[21]", "Params.sketch13_height")
pocket9 = body.newObject("PartDesign::Pocket", "Pocket008")
pocket9.Profile = sketch13
pocket9.setExpression("Length", "Params.pocket9_length")
pocket9.Reversed = True

# Sketch on XY plane
sketch14 = body.newObject("Sketcher::SketchObject", "Sketch013")
sketch14.AttachmentSupport = (doc.getObject("XY_Plane"), [""])
sketch14.MapMode = "FlatFace"
sketch14.AttachmentOffset = App.Placement(Vector(0, 0, 3), App.Rotation())
sketch14.addGeometry(Part.Circle(Vector(75.5, 48.4, 0), Vector(0, 0, 1), 4), False)
sketch14.addGeometry(Part.Circle(Vector(75.5, 48.4, 0), Vector(0, 0, 1), 1.7), False)
sketch14.addGeometry(Part.Circle(Vector(54, 32.9, 0), Vector(0, 0, 1), 4), False)
sketch14.addGeometry(Part.Circle(Vector(54, 32.9, 0), Vector(0, 0, 1), 1.7), False)
sketch14.addGeometry(Part.Circle(Vector(54, 5.5, 0), Vector(0, 0, 1), 4), False)
sketch14.addGeometry(Part.Circle(Vector(54, 5.5, 0), Vector(0, 0, 1), 1.7), False)
sketch14.addGeometry(Part.Circle(Vector(82, 0, 0), Vector(0, 0, 1), 4), False)
sketch14.addGeometry(Part.Circle(Vector(82, 0, 0), Vector(0, 0, 1), 1.7), False)
sketch14.addGeometry(Part.Circle(Vector(0, 0, 0), Vector(0, 0, 1), 4), False)
sketch14.addGeometry(Part.Circle(Vector(0, 0, 0), Vector(0, 0, 1), 1.7), False)
sketch14.addGeometry(Part.Circle(Vector(1.5, 48.4, 0), Vector(0, 0, 1), 4), False)
sketch14.addGeometry(Part.Circle(Vector(1.5, 48.4, 0), Vector(0, 0, 1), 1.7), False)
sketch14.addConstraint(Sketcher.Constraint("Coincident", 8, 3, -1, 1))
sketch14.addConstraint(Sketcher.Constraint("Coincident", 9, 3, -1, 1))
sketch14.addConstraint(Sketcher.Constraint("Coincident", 1, 3, 0, 3))
sketch14.addConstraint(Sketcher.Constraint("Coincident", 3, 3, 2, 3))
sketch14.addConstraint(Sketcher.Constraint("Coincident", 5, 3, 4, 3))
sketch14.addConstraint(Sketcher.Constraint("Coincident", 7, 3, 6, 3))
sketch14.addConstraint(Sketcher.Constraint("Coincident", 11, 3, 10, 3))
sketch14.addConstraint(Sketcher.Constraint("Equal", 0, 2))
sketch14.addConstraint(Sketcher.Constraint("Equal", 1, 3))
sketch14.addConstraint(Sketcher.Constraint("Equal", 2, 4))
sketch14.addConstraint(Sketcher.Constraint("Equal", 3, 5))
sketch14.addConstraint(Sketcher.Constraint("Equal", 4, 6))
sketch14.addConstraint(Sketcher.Constraint("Equal", 5, 7))
sketch14.addConstraint(Sketcher.Constraint("Equal", 6, 8))
sketch14.addConstraint(Sketcher.Constraint("Equal", 7, 9))
sketch14.addConstraint(Sketcher.Constraint("Equal", 8, 10))
sketch14.addConstraint(Sketcher.Constraint("Equal", 9, 11))
sketch14.addConstraint(Sketcher.Constraint("PointOnObject", 6, 3, -1))
sketch14.addConstraint(Sketcher.Constraint("Horizontal", 1, 3, 10, 3))
sketch14.addConstraint(Sketcher.Constraint("Vertical", 3, 3, 4, 3))
sketch14.addConstraint(Sketcher.Constraint("Diameter", 0, Q("8 mm")))
sketch14.addConstraint(Sketcher.Constraint("Diameter", 1, Q("3.4 mm")))
sketch14.addConstraint(Sketcher.Constraint("DistanceX", -1, 1, 2, 3, Q("54 mm")))
sketch14.addConstraint(Sketcher.Constraint("DistanceX", -1, 1, 6, 3, Q("82 mm")))
sketch14.addConstraint(Sketcher.Constraint("DistanceX", -1, 1, 0, 3, Q("75.5 mm")))
sketch14.addConstraint(Sketcher.Constraint("DistanceY", -1, 1, 0, 3, Q("48.4 mm")))
sketch14.addConstraint(Sketcher.Constraint("DistanceY", -1, 1, 2, 3, Q("32.9 mm")))
sketch14.addConstraint(Sketcher.Constraint("DistanceY", -1, 1, 4, 3, Q("5.5 mm")))
sketch14.addConstraint(Sketcher.Constraint("DistanceX", -1, 1, 10, 3, Q("1.5 mm")))
sketch14.setExpression("Constraints[20]", "Params.sketch14_diameter")
sketch14.setExpression("Constraints[21]", "Params.sketch14_diameter2")
pad5 = body.newObject("PartDesign::Pad", "Pad004")
pad5.Profile = sketch14
pad5.setExpression("Length", "Params.pad5_length")

doc.recompute()
